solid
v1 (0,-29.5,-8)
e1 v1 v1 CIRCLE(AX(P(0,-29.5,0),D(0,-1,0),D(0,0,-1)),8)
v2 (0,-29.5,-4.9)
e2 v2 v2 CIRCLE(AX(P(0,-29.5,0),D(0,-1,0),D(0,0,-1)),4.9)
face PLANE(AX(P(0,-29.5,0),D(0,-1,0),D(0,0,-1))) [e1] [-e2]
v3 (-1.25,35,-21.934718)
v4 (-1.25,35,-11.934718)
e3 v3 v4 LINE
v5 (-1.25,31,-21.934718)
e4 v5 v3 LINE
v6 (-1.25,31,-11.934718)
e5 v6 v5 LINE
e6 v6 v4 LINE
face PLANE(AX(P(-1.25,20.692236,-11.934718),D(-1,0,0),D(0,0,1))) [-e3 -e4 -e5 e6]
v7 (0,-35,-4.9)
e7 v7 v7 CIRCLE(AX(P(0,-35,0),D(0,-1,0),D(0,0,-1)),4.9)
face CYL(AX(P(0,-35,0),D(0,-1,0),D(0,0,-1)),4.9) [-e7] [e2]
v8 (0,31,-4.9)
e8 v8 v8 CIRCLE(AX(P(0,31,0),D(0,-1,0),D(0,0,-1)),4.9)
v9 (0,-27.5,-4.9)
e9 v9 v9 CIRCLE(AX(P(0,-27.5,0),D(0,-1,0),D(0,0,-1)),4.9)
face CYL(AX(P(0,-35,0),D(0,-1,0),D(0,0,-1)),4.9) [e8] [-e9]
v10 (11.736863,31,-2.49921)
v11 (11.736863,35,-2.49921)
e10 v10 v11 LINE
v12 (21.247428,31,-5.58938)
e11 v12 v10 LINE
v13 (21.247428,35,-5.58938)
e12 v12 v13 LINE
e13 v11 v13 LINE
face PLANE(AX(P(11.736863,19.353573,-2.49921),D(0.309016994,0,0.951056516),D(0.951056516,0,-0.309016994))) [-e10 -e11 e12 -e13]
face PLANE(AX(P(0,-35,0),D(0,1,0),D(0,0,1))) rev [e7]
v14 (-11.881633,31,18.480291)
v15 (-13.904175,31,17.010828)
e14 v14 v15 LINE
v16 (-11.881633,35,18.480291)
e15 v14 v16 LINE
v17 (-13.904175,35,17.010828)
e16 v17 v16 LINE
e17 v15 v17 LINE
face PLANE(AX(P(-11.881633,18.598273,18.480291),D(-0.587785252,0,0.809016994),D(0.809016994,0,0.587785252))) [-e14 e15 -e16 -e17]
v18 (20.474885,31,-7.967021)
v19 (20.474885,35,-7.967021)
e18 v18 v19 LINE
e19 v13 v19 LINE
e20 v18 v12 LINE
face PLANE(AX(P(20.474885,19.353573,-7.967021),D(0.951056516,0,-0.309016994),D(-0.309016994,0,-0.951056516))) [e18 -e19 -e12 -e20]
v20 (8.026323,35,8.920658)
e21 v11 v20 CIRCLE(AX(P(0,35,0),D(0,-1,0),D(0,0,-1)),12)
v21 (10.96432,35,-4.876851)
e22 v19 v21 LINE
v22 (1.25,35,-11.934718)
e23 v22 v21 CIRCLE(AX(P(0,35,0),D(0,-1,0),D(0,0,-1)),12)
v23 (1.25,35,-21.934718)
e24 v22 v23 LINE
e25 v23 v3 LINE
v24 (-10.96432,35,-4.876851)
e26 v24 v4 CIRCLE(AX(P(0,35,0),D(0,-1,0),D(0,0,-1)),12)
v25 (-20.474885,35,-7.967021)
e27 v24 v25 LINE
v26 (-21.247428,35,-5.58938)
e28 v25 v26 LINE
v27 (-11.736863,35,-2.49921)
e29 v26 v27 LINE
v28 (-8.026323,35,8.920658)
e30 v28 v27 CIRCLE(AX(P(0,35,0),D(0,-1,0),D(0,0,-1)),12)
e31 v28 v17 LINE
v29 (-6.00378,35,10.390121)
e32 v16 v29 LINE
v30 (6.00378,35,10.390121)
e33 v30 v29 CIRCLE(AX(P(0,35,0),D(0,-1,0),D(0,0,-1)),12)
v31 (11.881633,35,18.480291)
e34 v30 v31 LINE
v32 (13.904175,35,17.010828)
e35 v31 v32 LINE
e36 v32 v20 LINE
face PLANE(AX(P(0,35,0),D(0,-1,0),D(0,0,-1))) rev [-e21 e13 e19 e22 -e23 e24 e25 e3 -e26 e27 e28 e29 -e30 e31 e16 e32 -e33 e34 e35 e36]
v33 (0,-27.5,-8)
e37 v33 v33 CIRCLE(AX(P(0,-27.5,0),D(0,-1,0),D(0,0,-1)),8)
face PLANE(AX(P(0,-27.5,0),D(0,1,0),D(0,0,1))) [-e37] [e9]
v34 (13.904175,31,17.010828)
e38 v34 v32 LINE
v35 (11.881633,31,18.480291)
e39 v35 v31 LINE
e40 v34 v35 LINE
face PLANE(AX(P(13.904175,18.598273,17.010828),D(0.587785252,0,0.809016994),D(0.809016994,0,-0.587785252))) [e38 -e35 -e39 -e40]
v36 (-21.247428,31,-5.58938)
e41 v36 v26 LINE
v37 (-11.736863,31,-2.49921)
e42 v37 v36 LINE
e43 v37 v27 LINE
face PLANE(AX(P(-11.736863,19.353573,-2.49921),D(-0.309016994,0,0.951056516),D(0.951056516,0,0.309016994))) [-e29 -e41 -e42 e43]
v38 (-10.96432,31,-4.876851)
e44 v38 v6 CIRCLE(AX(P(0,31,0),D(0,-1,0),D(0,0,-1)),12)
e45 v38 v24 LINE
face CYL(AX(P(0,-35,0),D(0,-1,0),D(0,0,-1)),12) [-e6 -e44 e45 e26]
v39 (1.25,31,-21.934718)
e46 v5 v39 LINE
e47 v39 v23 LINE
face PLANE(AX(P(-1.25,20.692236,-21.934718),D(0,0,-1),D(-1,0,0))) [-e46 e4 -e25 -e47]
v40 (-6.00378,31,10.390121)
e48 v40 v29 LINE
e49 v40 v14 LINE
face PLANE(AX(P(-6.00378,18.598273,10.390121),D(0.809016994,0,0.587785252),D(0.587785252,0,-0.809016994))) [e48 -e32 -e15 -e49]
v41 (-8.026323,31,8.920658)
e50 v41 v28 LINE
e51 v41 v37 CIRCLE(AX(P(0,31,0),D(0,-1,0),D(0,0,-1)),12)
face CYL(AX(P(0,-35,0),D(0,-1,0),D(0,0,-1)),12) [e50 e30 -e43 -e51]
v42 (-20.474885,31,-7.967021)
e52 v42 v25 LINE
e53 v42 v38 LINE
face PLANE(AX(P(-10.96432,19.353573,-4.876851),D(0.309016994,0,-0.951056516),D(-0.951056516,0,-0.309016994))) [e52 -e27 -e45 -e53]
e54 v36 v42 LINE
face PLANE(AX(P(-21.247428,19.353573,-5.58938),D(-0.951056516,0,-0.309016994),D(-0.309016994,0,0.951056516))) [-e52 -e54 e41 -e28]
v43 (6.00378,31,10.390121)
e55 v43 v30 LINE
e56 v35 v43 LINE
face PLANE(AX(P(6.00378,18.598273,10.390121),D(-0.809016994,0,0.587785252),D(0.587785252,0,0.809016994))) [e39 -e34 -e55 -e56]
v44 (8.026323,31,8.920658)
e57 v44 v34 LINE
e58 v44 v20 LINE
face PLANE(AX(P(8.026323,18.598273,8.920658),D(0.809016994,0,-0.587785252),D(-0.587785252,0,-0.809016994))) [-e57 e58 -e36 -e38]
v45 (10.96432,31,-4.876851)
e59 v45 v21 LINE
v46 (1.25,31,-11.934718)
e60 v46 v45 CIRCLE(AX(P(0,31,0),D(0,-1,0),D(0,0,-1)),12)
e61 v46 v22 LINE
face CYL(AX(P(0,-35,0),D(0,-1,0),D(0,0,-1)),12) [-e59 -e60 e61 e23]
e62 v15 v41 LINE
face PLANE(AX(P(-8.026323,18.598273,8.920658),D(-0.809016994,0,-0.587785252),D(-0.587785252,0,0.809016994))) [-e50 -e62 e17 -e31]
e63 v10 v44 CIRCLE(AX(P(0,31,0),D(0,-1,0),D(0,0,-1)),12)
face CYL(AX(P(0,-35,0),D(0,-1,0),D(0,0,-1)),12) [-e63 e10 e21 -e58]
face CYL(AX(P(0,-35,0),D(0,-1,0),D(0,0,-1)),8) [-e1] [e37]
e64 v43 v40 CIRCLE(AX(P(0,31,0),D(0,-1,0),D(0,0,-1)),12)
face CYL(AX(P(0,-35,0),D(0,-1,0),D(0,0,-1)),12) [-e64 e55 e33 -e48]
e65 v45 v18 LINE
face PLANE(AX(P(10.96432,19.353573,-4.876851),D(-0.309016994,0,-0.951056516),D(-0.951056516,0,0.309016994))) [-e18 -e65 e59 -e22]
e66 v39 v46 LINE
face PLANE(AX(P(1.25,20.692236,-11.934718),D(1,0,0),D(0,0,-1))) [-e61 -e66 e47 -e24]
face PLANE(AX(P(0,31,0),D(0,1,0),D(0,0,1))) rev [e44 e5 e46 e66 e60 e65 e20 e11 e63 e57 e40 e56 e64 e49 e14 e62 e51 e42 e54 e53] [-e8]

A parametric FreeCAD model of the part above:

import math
import FreeCAD as App
import Part
import Sketcher

doc = App.newDocument("Part")
body = doc.addObject("PartDesign::Body", "Body")

# Sketch on XY plane
sketch1 = body.newObject("Sketcher::SketchObject", "Sketch")
sketch1.AttachmentSupport = (doc.getObject("XY_Plane"), [""])
sketch1.MapMode = "FlatFace"
sketch1.addGeometry([
    Part.LineSegment(App.Vector(0, -35, 0), App.Vector(0, 35, 0)),  # 0
    Part.LineSegment(App.Vector(0, 35, 0), App.Vector(-12, 35, 0)),  # 1
    Part.LineSegment(App.Vector(-12, 35, 0), App.Vector(-12, 31, 0)),  # 2
    Part.LineSegment(App.Vector(-12, 31, 0), App.Vector(-4.9, 31, 0)),  # 3
    Part.LineSegment(App.Vector(-4.9, 31, 0), App.Vector(-4.9, -27.5, 0)),  # 4
    Part.LineSegment(App.Vector(-4.9, -27.5, 0), App.Vector(-8, -27.5, 0)),  # 5
    Part.LineSegment(App.Vector(-8, -27.5, 0), App.Vector(-8, -29.5, 0)),  # 6
    Part.LineSegment(App.Vector(-8, -29.5, 0), App.Vector(-4.9, -29.5, 0)),  # 7
    Part.LineSegment(App.Vector(-4.9, -29.5, 0), App.Vector(-4.9, -35, 0)),  # 8
    Part.LineSegment(App.Vector(-4.9, -35, 0), App.Vector(0, -35, 0)),  # 9
], False)
sketch1.addConstraint([
    Sketcher.Constraint("Coincident", 0, 2, 1, 1),
    Sketcher.Constraint("Coincident", 1, 2, 2, 1),
    Sketcher.Constraint("Coincident", 2, 2, 3, 1),
    Sketcher.Constraint("Coincident", 3, 2, 4, 1),
    Sketcher.Constraint("Coincident", 4, 2, 5, 1),
    Sketcher.Constraint("Coincident", 5, 2, 6, 1),
    Sketcher.Constraint("Coincident", 6, 2, 7, 1),
    Sketcher.Constraint("Coincident", 7, 2, 8, 1),
    Sketcher.Constraint("Coincident", 8, 2, 9, 1),
    Sketcher.Constraint("Coincident", 9, 2, 0, 1),
    Sketcher.Constraint("Vertical", 0),
    Sketcher.Constraint("Horizontal", 1),
    Sketcher.Constraint("Vertical", 2),
    Sketcher.Constraint("Horizontal", 3),
    Sketcher.Constraint("Vertical", 4),
    Sketcher.Constraint("Horizontal", 5),
    Sketcher.Constraint("Vertical", 6),
    Sketcher.Constraint("Horizontal", 7),
    Sketcher.Constraint("Vertical", 8),
    Sketcher.Constraint("Horizontal", 9),
    Sketcher.Constraint("Symmetric", 0, 2, 9, 2, -1, 1),
    Sketcher.Constraint("Vertical", 4, 2, 7, 2),
    Sketcher.Constraint("DistanceX", 1, 2, 1, 1, 12.0),
    Sketcher.Constraint("DistanceY", 0, 1, 0, 2, 70.0),
    Sketcher.Constraint("DistanceY", 2, 2, 2, 1, 4.0),
    Sketcher.Constraint("DistanceY", 6, 2, 6, 1, 2.0),
    Sketcher.Constraint("DistanceX", 3, 1, 3, 2, 7.1),
    Sketcher.Constraint("DistanceX", 5, 2, 5, 1, 3.1),
    Sketcher.Constraint("DistanceY", 4, 2, 4, 1, 58.5),
])
revolution = body.newObject("PartDesign::Revolution", "Revolution")
revolution.Profile = sketch1
revolution.ReferenceAxis = (sketch1, ["V_Axis"])
revolution.Angle = 360

# Sketch on XZ plane
sketch2 = body.newObject("Sketcher::SketchObject", "Sketch001")
sketch2.AttachmentSupport = (doc.getObject("XZ_Plane"), [""])
sketch2.MapMode = "FlatFace"
sketch2.AttachmentOffset = App.Placement(App.Vector(0, 0, -35), App.Rotation())
sketch2.addGeometry([
    Part.LineSegment(App.Vector(-1.2, -21.9, 0), App.Vector(-1.2, -11.9, 0)),
    Part.ArcOfCircle(Part.Circle(App.Vector(0, 0, 0), App.Vector(0, 0, 1), 12), math.radians(-95.98), math.radians(-84.02)),
    Part.LineSegment(App.Vector(1.2, -11.9, 0), App.Vector(1.2, -21.9, 0)),
    Part.LineSegment(App.Vector(1.2, -21.9, 0), App.Vector(-1.2, -21.9, 0)),
], False)
sketch2.addConstraint([
    Sketcher.Constraint("Coincident", 0, 2, 1, 1),
    Sketcher.Constraint("Coincident", 1, 2, 2, 1),
    Sketcher.Constraint("Coincident", 2, 2, 3, 1),
    Sketcher.Constraint("Coincident", 3, 2, 0, 1),
    Sketcher.Constraint("Vertical", 0),
    Sketcher.Constraint("Vertical", 2),
    Sketcher.Constraint("Horizontal", 3),
    Sketcher.Constraint("Coincident", 1, 3, -1, 1),
    Sketcher.Constraint("Horizontal", 0, 2, 1, 2),
    Sketcher.Constraint("Radius", 1, 12.0),
    Sketcher.Constraint("DistanceY", 0, 1, 0, 2, 10.0),
    Sketcher.Constraint("DistanceX", 3, 2, 3, 1, 2.5),
])
pad1 = body.newObject("PartDesign::Pad", "Pad")
pad1.Profile = sketch2
pad1.Length = 4
doc.recompute()

polarpattern = body.newObject("PartDesign::PolarPattern", "PolarPattern")
polarpattern.Originals = [pad1]
polarpattern.Axis = (doc.getObject("Y_Axis"), [""])
polarpattern.Angle = 360
polarpattern.Occurrences = 5
body.Tip = polarpattern

doc.recompute()
